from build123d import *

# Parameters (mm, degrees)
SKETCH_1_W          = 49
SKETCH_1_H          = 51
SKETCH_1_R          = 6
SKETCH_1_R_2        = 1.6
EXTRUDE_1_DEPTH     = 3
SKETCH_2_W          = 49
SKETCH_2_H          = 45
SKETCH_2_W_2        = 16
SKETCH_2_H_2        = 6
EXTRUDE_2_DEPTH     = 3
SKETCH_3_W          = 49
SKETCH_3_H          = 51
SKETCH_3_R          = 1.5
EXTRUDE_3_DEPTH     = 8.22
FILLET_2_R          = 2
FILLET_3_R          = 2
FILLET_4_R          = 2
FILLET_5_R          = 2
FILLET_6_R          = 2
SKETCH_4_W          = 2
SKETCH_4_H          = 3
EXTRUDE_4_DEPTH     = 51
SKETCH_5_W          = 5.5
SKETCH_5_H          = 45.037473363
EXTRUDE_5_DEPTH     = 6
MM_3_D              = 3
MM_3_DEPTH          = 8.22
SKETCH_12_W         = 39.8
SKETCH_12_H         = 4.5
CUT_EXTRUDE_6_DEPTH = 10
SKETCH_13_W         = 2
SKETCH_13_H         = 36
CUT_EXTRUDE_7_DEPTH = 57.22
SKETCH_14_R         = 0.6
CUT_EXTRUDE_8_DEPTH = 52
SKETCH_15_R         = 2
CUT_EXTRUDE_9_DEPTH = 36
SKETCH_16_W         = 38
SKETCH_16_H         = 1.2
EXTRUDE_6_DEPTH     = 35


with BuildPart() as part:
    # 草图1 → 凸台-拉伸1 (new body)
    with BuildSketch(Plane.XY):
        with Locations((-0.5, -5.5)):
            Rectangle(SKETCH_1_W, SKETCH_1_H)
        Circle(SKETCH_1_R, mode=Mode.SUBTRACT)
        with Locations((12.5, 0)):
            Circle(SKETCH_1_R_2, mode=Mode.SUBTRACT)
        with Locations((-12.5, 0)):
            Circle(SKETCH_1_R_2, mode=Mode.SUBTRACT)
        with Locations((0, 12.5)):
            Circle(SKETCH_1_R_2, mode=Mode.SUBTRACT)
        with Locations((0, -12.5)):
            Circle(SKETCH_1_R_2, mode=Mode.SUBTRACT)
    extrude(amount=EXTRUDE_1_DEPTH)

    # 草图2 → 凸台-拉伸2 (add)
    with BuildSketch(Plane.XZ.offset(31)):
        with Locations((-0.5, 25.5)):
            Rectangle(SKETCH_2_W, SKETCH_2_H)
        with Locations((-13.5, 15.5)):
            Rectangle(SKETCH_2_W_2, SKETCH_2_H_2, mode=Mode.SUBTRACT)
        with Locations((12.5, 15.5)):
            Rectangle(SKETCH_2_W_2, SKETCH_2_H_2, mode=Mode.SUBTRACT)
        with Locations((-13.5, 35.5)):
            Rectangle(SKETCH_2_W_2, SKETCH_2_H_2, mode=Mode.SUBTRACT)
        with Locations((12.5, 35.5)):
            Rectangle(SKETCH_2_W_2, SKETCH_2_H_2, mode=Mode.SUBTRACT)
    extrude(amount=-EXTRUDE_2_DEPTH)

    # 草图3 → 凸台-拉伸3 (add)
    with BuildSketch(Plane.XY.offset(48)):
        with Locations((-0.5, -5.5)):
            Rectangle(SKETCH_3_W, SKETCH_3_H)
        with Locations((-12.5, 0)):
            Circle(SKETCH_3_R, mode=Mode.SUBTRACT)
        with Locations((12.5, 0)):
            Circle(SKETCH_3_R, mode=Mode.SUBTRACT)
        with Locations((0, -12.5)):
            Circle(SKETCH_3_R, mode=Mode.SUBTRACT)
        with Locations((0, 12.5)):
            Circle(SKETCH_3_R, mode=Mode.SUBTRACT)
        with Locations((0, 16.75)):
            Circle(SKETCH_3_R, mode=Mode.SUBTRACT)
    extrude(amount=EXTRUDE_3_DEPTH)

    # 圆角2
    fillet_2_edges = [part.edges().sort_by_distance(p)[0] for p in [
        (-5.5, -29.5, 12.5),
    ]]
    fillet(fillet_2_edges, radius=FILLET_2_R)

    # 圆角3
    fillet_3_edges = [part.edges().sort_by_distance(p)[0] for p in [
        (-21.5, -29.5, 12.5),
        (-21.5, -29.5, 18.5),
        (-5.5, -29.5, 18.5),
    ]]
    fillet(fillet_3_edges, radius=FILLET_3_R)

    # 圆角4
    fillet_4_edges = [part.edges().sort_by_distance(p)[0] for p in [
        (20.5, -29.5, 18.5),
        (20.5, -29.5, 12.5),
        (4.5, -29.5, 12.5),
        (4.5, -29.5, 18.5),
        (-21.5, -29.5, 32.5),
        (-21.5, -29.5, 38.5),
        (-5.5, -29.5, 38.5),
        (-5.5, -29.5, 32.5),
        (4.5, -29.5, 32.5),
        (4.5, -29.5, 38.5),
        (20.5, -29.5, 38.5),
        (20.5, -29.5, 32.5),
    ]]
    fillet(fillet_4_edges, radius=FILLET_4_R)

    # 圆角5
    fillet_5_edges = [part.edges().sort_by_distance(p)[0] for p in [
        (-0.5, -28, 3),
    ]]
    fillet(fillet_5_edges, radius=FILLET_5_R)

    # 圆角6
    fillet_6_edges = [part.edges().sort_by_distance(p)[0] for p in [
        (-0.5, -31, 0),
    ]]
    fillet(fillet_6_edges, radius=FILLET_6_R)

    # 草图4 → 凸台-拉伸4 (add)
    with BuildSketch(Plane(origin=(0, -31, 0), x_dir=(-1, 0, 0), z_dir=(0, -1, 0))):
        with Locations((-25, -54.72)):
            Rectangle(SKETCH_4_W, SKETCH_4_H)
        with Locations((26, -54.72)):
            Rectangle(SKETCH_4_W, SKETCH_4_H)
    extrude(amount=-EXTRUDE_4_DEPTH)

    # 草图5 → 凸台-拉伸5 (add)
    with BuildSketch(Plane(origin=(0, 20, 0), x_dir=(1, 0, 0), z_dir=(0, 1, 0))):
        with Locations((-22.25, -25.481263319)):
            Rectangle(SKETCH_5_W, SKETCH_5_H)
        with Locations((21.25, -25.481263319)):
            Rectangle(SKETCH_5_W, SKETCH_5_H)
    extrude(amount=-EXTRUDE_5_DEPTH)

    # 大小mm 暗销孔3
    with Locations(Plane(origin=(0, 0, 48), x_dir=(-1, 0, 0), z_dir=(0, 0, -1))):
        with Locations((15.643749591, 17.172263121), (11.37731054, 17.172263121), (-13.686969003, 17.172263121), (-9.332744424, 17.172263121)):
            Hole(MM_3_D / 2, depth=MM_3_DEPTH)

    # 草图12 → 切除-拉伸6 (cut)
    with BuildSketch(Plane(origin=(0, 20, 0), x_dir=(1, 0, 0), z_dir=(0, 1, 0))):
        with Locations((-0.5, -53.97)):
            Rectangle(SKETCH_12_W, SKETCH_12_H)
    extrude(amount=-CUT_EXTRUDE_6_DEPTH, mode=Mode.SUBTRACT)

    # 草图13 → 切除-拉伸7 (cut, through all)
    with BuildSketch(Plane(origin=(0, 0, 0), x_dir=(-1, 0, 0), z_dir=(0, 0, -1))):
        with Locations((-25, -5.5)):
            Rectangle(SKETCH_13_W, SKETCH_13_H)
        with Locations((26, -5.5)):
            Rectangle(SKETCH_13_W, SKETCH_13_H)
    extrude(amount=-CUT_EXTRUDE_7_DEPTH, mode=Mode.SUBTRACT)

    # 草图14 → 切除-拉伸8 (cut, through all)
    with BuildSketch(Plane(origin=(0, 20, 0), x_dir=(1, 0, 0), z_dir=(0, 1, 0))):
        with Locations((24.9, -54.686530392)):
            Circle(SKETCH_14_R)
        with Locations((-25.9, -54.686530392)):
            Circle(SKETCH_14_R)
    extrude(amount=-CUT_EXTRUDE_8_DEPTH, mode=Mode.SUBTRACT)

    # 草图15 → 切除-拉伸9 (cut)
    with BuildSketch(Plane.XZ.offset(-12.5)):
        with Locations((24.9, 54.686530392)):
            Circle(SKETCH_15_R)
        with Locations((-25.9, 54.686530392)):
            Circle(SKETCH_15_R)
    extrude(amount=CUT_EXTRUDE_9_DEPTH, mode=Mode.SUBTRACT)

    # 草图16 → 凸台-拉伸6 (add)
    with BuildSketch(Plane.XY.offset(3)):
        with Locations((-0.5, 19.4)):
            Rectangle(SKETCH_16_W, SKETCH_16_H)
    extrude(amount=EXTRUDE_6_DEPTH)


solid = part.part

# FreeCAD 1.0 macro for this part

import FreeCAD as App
import Part
import Sketcher

V = App.Vector


def edges_at(feature, points):
    """Names of the edges that pass closest to the given points."""
    edges = feature.Shape.Edges
    near = lambda p: min(range(len(edges)), key=lambda i: edges[i].distToShape(Part.Vertex(*p))[0])
    return sorted({f"Edge{near(p) + 1}" for p in points})

doc = App.newDocument("Part")
params = doc.addObject("Spreadsheet::Sheet", "Params")
for row, (alias, value) in enumerate([
    ("sketch1_diameter", "12 mm"),
    ("sketch1_diameter2", "3.2 mm"),
    ("sketch1_width", "49 mm"),
    ("sketch1_height", "51 mm"),
    ("pad1_length", "3 mm"),
    ("sketch2_width", "49 mm"),
    ("sketch2_width2", "16 mm"),
    ("sketch2_height", "45 mm"),
    ("sketch2_height2", "6 mm"),
    ("pad2_length", "3 mm"),
    ("sketch3_diameter", "3 mm"),
    ("sketch3_width", "49 mm"),
    ("sketch3_height", "51 mm"),
    ("pad3_length", "8.22 mm"),
    ("fillet_radius", "2 mm"),
    ("fillet2_radius", "2 mm"),
    ("fillet3_radius", "2 mm"),
    ("fillet4_radius", "2 mm"),
    ("fillet5_radius", "2 mm"),
    ("sketch4_width", "2 mm"),
    ("sketch4_height", "3 mm"),
    ("pad4_length", "51 mm"),
    ("sketch5_width", "5.5 mm"),
    ("pad5_length", "6 mm"),
    ("sketch6_diameter", "3 mm"),
    ("hole_diameter", "3 mm"),
    ("hole_depth", "8.22 mm"),
    ("sketch7_width", "39.8 mm"),
    ("sketch7_height", "4.5 mm"),
    ("pocket1_length", "10 mm"),
    ("sketch8_width", "2 mm"),
    ("sketch8_height", "36 mm"),
    ("sketch9_diameter", "1.2 mm"),
    ("sketch10_diameter", "4 mm"),
    ("pocket4_length", "36 mm"),
    ("sketch11_width", "38 mm"),
    ("sketch11_height", "1.2 mm"),
    ("pad6_length", "35 mm"),
], start=1):
    params.set(f"A{row}", alias)
    params.set(f"B{row}", "=" + value)
    params.setAlias(f"B{row}", alias)

body = doc.addObject("PartDesign::Body", "Body")

sketch1 = body.newObject("Sketcher::SketchObject", "Sketch")
sketch1.AttachmentSupport = (doc.getObject("XY_Plane"), [""])
sketch1.MapMode = "FlatFace"
sketch1.addGeometry([
    Part.LineSegment(V(-25, 20, 0), V(-25, -31, 0)),
    Part.LineSegment(V(-25, -31, 0), V(24, -31, 0)),
    Part.LineSegment(V(24, -31, 0), V(24, 20, 0)),
    Part.LineSegment(V(24, 20, 0), V(-25, 20, 0)),
    Part.Circle(V(-12.5, 0, 0), V(0, 0, 1), 1.6),
    Part.Circle(V(0, -12.5, 0), V(0, 0, 1), 1.6),
    Part.Circle(V(0, 0, 0), V(0, 0, 1), 6),
    Part.Circle(V(12.5, 0, 0), V(0, 0, 1), 1.6),
    Part.Circle(V(0, 12.5, 0), V(0, 0, 1), 1.6),
], False)
sketch1.addConstraint([
    Sketcher.Constraint("Coincident", 0, 2, 1, 1),
    Sketcher.Constraint("Coincident", 1, 2, 2, 1),
    Sketcher.Constraint("Coincident", 2, 2, 3, 1),
    Sketcher.Constraint("Coincident", 3, 2, 0, 1),
    Sketcher.Constraint("Vertical", 0),
    Sketcher.Constraint("Horizontal", 1),
    Sketcher.Constraint("Vertical", 2),
    Sketcher.Constraint("Horizontal", 3),
    Sketcher.Constraint("Coincident", 6, 3, -1, 1),
    Sketcher.Constraint("Equal", 4, 5),
    Sketcher.Constraint("Equal", 5, 7),
    Sketcher.Constraint("Equal", 7, 8),
    Sketcher.Constraint("Symmetric", 4, 3, 7, 3, -1, 1),
    Sketcher.Constraint("Symmetric", 5, 3, 8, 3, -1, 1),
    Sketcher.Constraint("PointOnObject", 4, 3, -1),
    Sketcher.Constraint("PointOnObject", 5, 3, -2),
    Sketcher.Constraint("Diameter", 6, 12.0),
    Sketcher.Constraint("Diameter", 4, 3.2),
    Sketcher.Constraint("DistanceX", 1, 1, 1, 2, 49.0),
    Sketcher.Constraint("DistanceY", 0, 2, 0, 1, 51.0),
    Sketcher.Constraint("DistanceX", 0, 2, -1, 1, 25.0),
    Sketcher.Constraint("DistanceY", 0, 2, -1, 1, 31.0),
    Sketcher.Constraint("DistanceX", 4, 3, 7, 3, 25.0),
    Sketcher.Constraint("DistanceY", 5, 3, 8, 3, 25.0),
])
sketch1.setExpression("Constraints[16]", "Params.sketch1_diameter")
sketch1.setExpression("Constraints[17]", "Params.sketch1_diameter2")
sketch1.setExpression("Constraints[18]", "Params.sketch1_width")
sketch1.setExpression("Constraints[19]", "Params.sketch1_height")
pad1 = body.newObject("PartDesign::Pad", "Pad")
pad1.Profile = sketch1
pad1.setExpression("Length", "Params.pad1_length")

sketch2 = body.newObject("Sketcher::SketchObject", "Sketch001")
sketch2.AttachmentSupport = (doc.getObject("XZ_Plane"), [""])
sketch2.MapMode = "FlatFace"
sketch2.AttachmentOffset = App.Placement(V(0, 0, 31), App.Rotation())
sketch2.addGeometry([
    Part.LineSegment(V(-25, 48, 0), V(-25, 3, 0)),
    Part.LineSegment(V(-25, 3, 0), V(24, 3, 0)),
    Part.LineSegment(V(24, 3, 0), V(24, 48, 0)),
    Part.LineSegment(V(24, 48, 0), V(-25, 48, 0)),
    Part.LineSegment(V(-6, 12, 0), V(-22, 12, 0)),
    Part.LineSegment(V(-22, 12, 0), V(-22, 18, 0)),
    Part.LineSegment(V(-22, 18, 0), V(-6, 18, 0)),
    Part.LineSegment(V(-6, 18, 0), V(-6, 12, 0)),
    Part.LineSegment(V(20, 12, 0), V(4, 12, 0)),
    Part.LineSegment(V(4, 12, 0), V(4, 18, 0)),
    Part.LineSegment(V(4, 18, 0), V(20, 18, 0)),
    Part.LineSegment(V(20, 18, 0), V(20, 12, 0)),
    Part.LineSegment(V(-6, 32, 0), V(-22, 32, 0)),
    Part.LineSegment(V(-22, 32, 0), V(-22, 38, 0)),
    Part.LineSegment(V(-22, 38, 0), V(-6, 38, 0)),
    Part.LineSegment(V(-6, 38, 0), V(-6, 32, 0)),
    Part.LineSegment(V(20, 32, 0), V(4, 32, 0)),
    Part.LineSegment(V(4, 32, 0), V(4, 38, 0)),
    Part.LineSegment(V(4, 38, 0), V(20, 38, 0)),
    Part.LineSegment(V(20, 38, 0), V(20, 32, 0)),
], False)
sketch2.addConstraint([
    Sketcher.Constraint("Coincident", 0, 2, 1, 1),
    Sketcher.Constraint("Coincident", 1, 2, 2, 1),
    Sketcher.Constraint("Coincident", 2, 2, 3, 1),
    Sketcher.Constraint("Coincident", 3, 2, 0, 1),
    Sketcher.Constraint("Coincident", 4, 2, 5, 1),
    Sketcher.Constraint("Coincident", 5, 2, 6, 1),
    Sketcher.Constraint("Coincident", 6, 2, 7, 1),
    Sketcher.Constraint("Coincident", 7, 2, 4, 1),
    Sketcher.Constraint("Coincident", 8, 2, 9, 1),
    Sketcher.Constraint("Coincident", 9, 2, 10, 1),
    Sketcher.Constraint("Coincident", 10, 2, 11, 1),
    Sketcher.Constraint("Coincident", 11, 2, 8, 1),
    Sketcher.Constraint("Coincident", 12, 2, 13, 1),
    Sketcher.Constraint("Coincident", 13, 2, 14, 1),
    Sketcher.Constraint("Coincident", 14, 2, 15, 1),
    Sketcher.Constraint("Coincident", 15, 2, 12, 1),
    Sketcher.Constraint("Coincident", 16, 2, 17, 1),
    Sketcher.Constraint("Coincident", 17, 2, 18, 1),
    Sketcher.Constraint("Coincident", 18, 2, 19, 1),
    Sketcher.Constraint("Coincident", 19, 2, 16, 1),
    Sketcher.Constraint("Vertical", 0),
    Sketcher.Constraint("Horizontal", 1),
    Sketcher.Constraint("Vertical", 2),
    Sketcher.Constraint("Horizontal", 3),
    Sketcher.Constraint("Horizontal", 4),
    Sketcher.Constraint("Vertical", 5),
    Sketcher.Constraint("Horizontal", 6),
    Sketcher.Constraint("Vertical", 7),
    Sketcher.Constraint("Horizontal", 8),
    Sketcher.Constraint("Vertical", 9),
    Sketcher.Constraint("Horizontal", 10),
    Sketcher.Constraint("Vertical", 11),
    Sketcher.Constraint("Horizontal", 12),
    Sketcher.Constraint("Vertical", 13),
    Sketcher.Constraint("Horizontal", 14),
    Sketcher.Constraint("Vertical", 15),
    Sketcher.Constraint("Horizontal", 16),
    Sketcher.Constraint("Vertical", 17),
    Sketcher.Constraint("Horizontal", 18),
    Sketcher.Constraint("Vertical", 19),
    Sketcher.Constraint("Horizontal", 7, 2, 8, 2),
    Sketcher.Constraint("Horizontal", 6, 2, 9, 2),
    Sketcher.Constraint("Horizontal", 15, 2, 16, 2),
    Sketcher.Constraint("Horizontal", 14, 2, 17, 2),
    Sketcher.Constraint("Vertical", 5, 2, 12, 2),
    Sketcher.Constraint("Vertical", 7, 2, 14, 2),
    Sketcher.Constraint("Vertical", 9, 2, 16, 2),
    Sketcher.Constraint("Vertical", 11, 2, 18, 2),
    Sketcher.Constraint("Equal", 6, 8),
    Sketcher.Constraint("Equal", 11, 13),
    Sketcher.Constraint("DistanceX", 1, 1, 1, 2, 49.0),
    Sketcher.Constraint("DistanceX", 4, 2, 4, 1, 16.0),
    Sketcher.Constraint("DistanceY", 0, 2, 0, 1, 45.0),
    Sketcher.Constraint("DistanceY", 5, 1, 5, 2, 6.0),
    Sketcher.Constraint("DistanceX", 0, 2, -1, 1, 25.0),
    Sketcher.Constraint("DistanceY", -1, 1, 0, 2, 3.0),
    Sketcher.Constraint("DistanceX", 7, 2, 8, 2, 10.0),
    Sketcher.Constraint("DistanceY", 5, 2, 12, 2, 14.0),
    Sketcher.Constraint("DistanceX", 4, 2, -1, 1, 21.5),
    Sketcher.Constraint("DistanceY", -1, 1, 4, 2, 12.5),
])
sketch2.setExpression("Constraints[50]", "Params.sketch2_width")
sketch2.setExpression("Constraints[51]", "Params.sketch2_width2")
sketch2.setExpression("Constraints[52]", "Params.sketch2_height")
sketch2.setExpression("Constraints[53]", "Params.sketch2_height2")
pad2 = body.newObject("PartDesign::Pad", "Pad001")
pad2.Profile = sketch2
pad2.setExpression("Length", "Params.pad2_length")
pad2.Reversed = True

sketch3 = body.newObject("Sketcher::SketchObject", "Sketch002")
sketch3.AttachmentSupport = (doc.getObject("XY_Plane"), [""])
sketch3.MapMode = "FlatFace"
sketch3.AttachmentOffset = App.Placement(V(0, 0, 48), App.Rotation())
sketch3.addGeometry([
    Part.LineSegment(V(-25, 20, 0), V(-25, -31, 0)),
    Part.LineSegment(V(-25, -31, 0), V(24, -31, 0)),
    Part.LineSegment(V(24, -31, 0), V(24, 20, 0)),
    Part.LineSegment(V(24, 20, 0), V(-25, 20, 0)),
    Part.Circle(V(-12.5, 0, 0), V(0, 0, 1), 1.5),
    Part.Circle(V(0, -12.5, 0), V(0, 0, 1), 1.5),
    Part.Circle(V(12.5, 0, 0), V(0, 0, 1), 1.5),
    Part.Circle(V(0, 12.5, 0), V(0, 0, 1), 1.5),
    Part.Circle(V(0, 16.8, 0), V(0, 0, 1), 1.5),
], False)
sketch3.addConstraint([
    Sketcher.Constraint("Coincident", 0, 2, 1, 1),
    Sketcher.Constraint("Coincident", 1, 2, 2, 1),
    Sketcher.Constraint("Coincident", 2, 2, 3, 1),
    Sketcher.Constraint("Coincident", 3, 2, 0, 1),
    Sketcher.Constraint("Vertical", 0),
    Sketcher.Constraint("Horizontal", 1),
    Sketcher.Constraint("Vertical", 2),
    Sketcher.Constraint("Horizontal", 3),
    Sketcher.Constraint("Equal", 4, 5),
    Sketcher.Constraint("Equal", 5, 6),
    Sketcher.Constraint("Equal", 6, 7),
    Sketcher.Constraint("Equal", 7, 8),
    Sketcher.Constraint("Symmetric", 4, 3, 6, 3, -1, 1),
    Sketcher.Constraint("Symmetric", 5, 3, 7, 3, -1, 1),
    Sketcher.Constraint("PointOnObject", 4, 3, -1),
    Sketcher.Constraint("PointOnObject", 5, 3, -2),
    Sketcher.Constraint("PointOnObject", 8, 3, -2),
    Sketcher.Constraint("Diameter", 4, 3.0),
    Sketcher.Constraint("DistanceX", 1, 1, 1, 2, 49.0),
    Sketcher.Constraint("DistanceY", 0, 2, 0, 1, 51.0),
    Sketcher.Constraint("DistanceX", 0, 2, -1, 1, 25.0),
    Sketcher.Constraint("DistanceY", 0, 2, -1, 1, 31.0),
    Sketcher.Constraint("DistanceX", 4, 3, 6, 3, 25.0),
    Sketcher.Constraint("DistanceY", 5, 3, 7, 3, 25.0),
    Sketcher.Constraint("DistanceY", -1, 1, 8, 3, 16.75),
])
sketch3.setExpression("Constraints[17]", "Params.sketch3_diameter")
sketch3.setExpression("Constraints[18]", "Params.sketch3_width")
sketch3.setExpression("Constraints[19]", "Params.sketch3_height")
pad3 = body.newObject("PartDesign::Pad", "Pad002")
pad3.Profile = sketch3
pad3.setExpression("Length", "Params.pad3_length")
doc.recompute()

fillet = body.newObject("PartDesign::Fillet", "Fillet")
fillet.Base = (pad3, edges_at(pad3, [(-5.5, -29.5, 12.5)]))
fillet.setExpression("Radius", "Params.fillet_radius")
doc.recompute()

fillet2 = body.newObject("PartDesign::Fillet", "Fillet001")
fillet2.Base = (fillet, edges_at(fillet, [(-21.5, -29.5, 12.5), (-21.5, -29.5, 18.5), (-5.5, -29.5, 18.5)]))
fillet2.setExpression("Radius", "Params.fillet2_radius")
doc.recompute()

fillet3 = body.newObject("PartDesign::Fillet", "Fillet002")
fillet3.Base = (fillet2, edges_at(fillet2, [
    (20.5, -29.5, 18.5),
    (20.5, -29.5, 12.5),
    (4.5, -29.5, 12.5),
    (4.5, -29.5, 18.5),
    (-21.5, -29.5, 32.5),
    (-21.5, -29.5, 38.5),
    (-5.5, -29.5, 38.5),
    (-5.5, -29.5, 32.5),
    (4.5, -29.5, 32.5),
    (4.5, -29.5, 38.5),
    (20.5, -29.5, 38.5),
    (20.5, -29.5, 32.5),
]))
fillet3.setExpression("Radius", "Params.fillet3_radius")
doc.recompute()

fillet4 = body.newObject("PartDesign::Fillet", "Fillet003")
fillet4.Base = (fillet3, edges_at(fillet3, [(-0.5, -28, 3)]))
fillet4.setExpression("Radius", "Params.fillet4_radius")
doc.recompute()

fillet5 = body.newObject("PartDesign::Fillet", "Fillet004")
fillet5.Base = (fillet4, edges_at(fillet4, [(-0.5, -31, 0)]))
fillet5.setExpression("Radius", "Params.fillet5_radius")

sketch4 = body.newObject("Sketcher::SketchObject", "Sketch003")
sketch4.AttachmentSupport = (doc.getObject("XZ_Plane"), [""])
sketch4.MapMode = "FlatFace"
sketch4.AttachmentOffset = App.Placement(V(0, 0, 31), App.Rotation())
sketch4.addGeometry([
    Part.LineSegment(V(26, 53.2, 0), V(26, 56.2, 0)),
    Part.LineSegment(V(26, 56.2, 0), V(24, 56.2, 0)),
    Part.LineSegment(V(24, 56.2, 0), V(24, 53.2, 0)),
    Part.LineSegment(V(24, 53.2, 0), V(26, 53.2, 0)),
    Part.LineSegment(V(-25, 53.2, 0), V(-25, 56.2, 0)),
    Part.LineSegment(V(-25, 56.2, 0), V(-27, 56.2, 0)),
    Part.LineSegment(V(-27, 56.2, 0), V(-27, 53.2, 0)),
    Part.LineSegment(V(-27, 53.2, 0), V(-25, 53.2, 0)),
], False)
sketch4.addConstraint([
    Sketcher.Constraint("Coincident", 0, 2, 1, 1),
    Sketcher.Constraint("Coincident", 1, 2, 2, 1),
    Sketcher.Constraint("Coincident", 2, 2, 3, 1),
    Sketcher.Constraint("Coincident", 3, 2, 0, 1),
    Sketcher.Constraint("Coincident", 4, 2, 5, 1),
    Sketcher.Constraint("Coincident", 5, 2, 6, 1),
    Sketcher.Constraint("Coincident", 6, 2, 7, 1),
    Sketcher.Constraint("Coincident", 7, 2, 4, 1),
    Sketcher.Constraint("Vertical", 0),
    Sketcher.Constraint("Horizontal", 1),
    Sketcher.Constraint("Vertical", 2),
    Sketcher.Constraint("Horizontal", 3),
    Sketcher.Constraint("Vertical", 4),
    Sketcher.Constraint("Horizontal", 5),
    Sketcher.Constraint("Vertical", 6),
    Sketcher.Constraint("Horizontal", 7),
    Sketcher.Constraint("Horizontal", 1, 2, 4, 2),
    Sketcher.Constraint("Horizontal", 3, 2, 6, 2),
    Sketcher.Constraint("Equal", 3, 5),
    Sketcher.Constraint("DistanceX", 1, 2, 1, 1, 2.0),
    Sketcher.Constraint("DistanceY", 0, 1, 0, 2, 3.0),
    Sketcher.Constraint("DistanceX", -1, 1, 0, 2, 26.0),
    Sketcher.Constraint("DistanceX", 4, 2, -1, 1, 25.0),
    Sketcher.Constraint("DistanceY", -1, 1, 0, 2, 56.22),
])
sketch4.setExpression("Constraints[19]", "Params.sketch4_width")
sketch4.setExpression("Constraints[20]", "Params.sketch4_height")
pad4 = body.newObject("PartDesign::Pad", "Pad003")
pad4.Profile = sketch4
pad4.setExpression("Length", "Params.pad4_length")
pad4.Reversed = True

sketch5 = body.newObject("Sketcher::SketchObject", "Sketch004")
sketch5.AttachmentSupport = (doc.getObject("XZ_Plane"), [""])
sketch5.MapMode = "FlatFace"
sketch5.AttachmentOffset = App.Placement(V(0, 0, -20), App.Rotation())
sketch5.addGeometry([
    Part.LineSegment(V(-25, 3, 0), V(-25, 48, 0)),
    Part.LineSegment(V(-25, 48, 0), V(-20, 48, 0)),
    Part.LineSegment(V(-20, 48, 0), V(-20, 3, 0)),
    Part.LineSegment(V(-20, 3, 0), V(-25, 3, 0)),
    Part.LineSegment(V(18, 3, 0), V(18, 48, 0)),
    Part.LineSegment(V(18, 48, 0), V(24, 48, 0)),
    Part.LineSegment(V(24, 48, 0), V(24, 3, 0)),
    Part.LineSegment(V(24, 3, 0), V(18, 3, 0)),
], False)
sketch5.addConstraint([
    Sketcher.Constraint("Coincident", 0, 2, 1, 1),
    Sketcher.Constraint("Coincident", 1, 2, 2, 1),
    Sketcher.Constraint("Coincident", 2, 2, 3, 1),
    Sketcher.Constraint("Coincident", 3, 2, 0, 1),
    Sketcher.Constraint("Coincident", 4, 2, 5, 1),
    Sketcher.Constraint("Coincident", 5, 2, 6, 1),
    Sketcher.Constraint("Coincident", 6, 2, 7, 1),
    Sketcher.Constraint("Coincident", 7, 2, 4, 1),
    Sketcher.Constraint("Vertical", 0),
    Sketcher.Constraint("Horizontal", 1),
    Sketcher.Constraint("Vertical", 2),
    Sketcher.Constraint("Horizontal", 3),
    Sketcher.Constraint("Vertical", 4),
    Sketcher.Constraint("Horizontal", 5),
    Sketcher.Constraint("Vertical", 6),
    Sketcher.Constraint("Horizontal", 7),
    Sketcher.Constraint("Horizontal", 1, 2, 4, 2),
    Sketcher.Constraint("Horizontal", 3, 2, 6, 2),
    Sketcher.Constraint("Equal", 3, 5),
    Sketcher.Constraint("DistanceX", 1, 1, 1, 2, 5.5),
    Sketcher.Constraint("DistanceX", 0, 2, -1, 1, 25.0),
    Sketcher.Constraint("DistanceY", -1, 1, 0, 2, 48.0),
    Sketcher.Constraint("DistanceX", -1, 1, 5, 2, 24.0),
    Sketcher.Constraint("DistanceY", 0, 1, 0, 2, 45.037473),
])
sketch5.setExpression("Constraints[19]", "Params.sketch5_width")
pad5 = body.newObject("PartDesign::Pad", "Pad004")
pad5.Profile = sketch5
pad5.setExpression("Length", "Params.pad5_length")

sketch6 = body.newObject("Sketcher::SketchObject", "Sketch005")
sketch6.AttachmentSupport = (doc.getObject("XY_Plane"), [""])
sketch6.MapMode = "FlatFace"
sketch6.AttachmentOffset = App.Placement(V(0, 0, 48), App.Rotation())
sketch6.addGeometry([
    Part.Circle(V(-15.6, 17.2, 0), V(0, 0, 1), 1.5),
    Part.Circle(V(-11.4, 17.2, 0), V(0, 0, 1), 1.5),
    Part.Circle(V(13.7, 17.2, 0), V(0, 0, 1), 1.5),
    Part.Circle(V(9.3, 17.2, 0), V(0, 0, 1), 1.5),
], False)
sketch6.addConstraint([
    Sketcher.Constraint("Equal", 0, 1),
    Sketcher.Constraint("Equal", 1, 2),
    Sketcher.Constraint("Equal", 2, 3),
    Sketcher.Constraint("Horizontal", 0, 3, 1, 3),
    Sketcher.Constraint("Horizontal", 1, 3, 2, 3),
    Sketcher.Constraint("Horizontal", 2, 3, 3, 3),
    Sketcher.Constraint("Diameter", 0, 3.0),
    Sketcher.Constraint("DistanceX", 0, 3, -1, 1, 15.64375),
    Sketcher.Constraint("DistanceX", 1, 3, -1, 1, 11.377311),
    Sketcher.Constraint("DistanceX", -1, 1, 2, 3, 13.686969),
    Sketcher.Constraint("DistanceY", -1, 1, 0, 3, 17.172263),
    Sketcher.Constraint("DistanceX", -1, 1, 3, 3, 9.332744),
])
sketch6.setExpression("Constraints[6]", "Params.sketch6_diameter")
doc.recompute()
hole = body.newObject("PartDesign::Hole", "Hole")
hole.Profile = sketch6
hole.ThreadType = "None"
hole.setExpression("Diameter", "Params.hole_diameter")
hole.DepthType = "Dimension"
hole.setExpression("Depth", "Params.hole_depth")
hole.DrillPoint = "Flat"
hole.Reversed = True

sketch7 = body.newObject("Sketcher::SketchObject", "Sketch006")
sketch7.AttachmentSupport = (doc.getObject("XZ_Plane"), [""])
sketch7.MapMode = "FlatFace"
sketch7.AttachmentOffset = App.Placement(V(0, 0, -20), App.Rotation())
sketch7.addGeometry([
    Part.LineSegment(V(-20.4, 51.7, 0), V(-20.4, 56.2, 0)),
    Part.LineSegment(V(-20.4, 56.2, 0), V(19.4, 56.2, 0)),
    Part.LineSegment(V(19.4, 56.2, 0), V(19.4, 51.7, 0)),
    Part.LineSegment(V(19.4, 51.7, 0), V(-20.4, 51.7, 0)),
], False)
sketch7.addConstraint([
    Sketcher.Constraint("Coincident", 0, 2, 1, 1),
    Sketcher.Constraint("Coincident", 1, 2, 2, 1),
    Sketcher.Constraint("Coincident", 2, 2, 3, 1),
    Sketcher.Constraint("Coincident", 3, 2, 0, 1),
    Sketcher.Constraint("Vertical", 0),
    Sketcher.Constraint("Horizontal", 1),
    Sketcher.Constraint("Vertical", 2),
    Sketcher.Constraint("Horizontal", 3),
    Sketcher.Constraint("DistanceX", 1, 1, 1, 2, 39.8),
    Sketcher.Constraint("DistanceY", 0, 1, 0, 2, 4.5),
    Sketcher.Constraint("DistanceX", 0, 2, -1, 1, 20.4),
    Sketcher.Constraint("DistanceY", -1, 1, 0, 2, 56.22),
])
sketch7.setExpression("Constraints[8]", "Params.sketch7_width")
sketch7.setExpression("Constraints[9]", "Params.sketch7_height")
pocket1 = body.newObject("PartDesign::Pocket", "Pocket")
pocket1.Profile = sketch7
pocket1.setExpression("Length", "Params.pocket1_length")
pocket1.Reversed = True

sketch8 = body.newObject("Sketcher::SketchObject", "Sketch007")
sketch8.AttachmentSupport = (doc.getObject("XY_Plane"), [""])
sketch8.MapMode = "FlatFace"
sketch8.addGeometry([
    Part.LineSegment(V(26, 12.5, 0), V(26, -23.5, 0)),
    Part.LineSegment(V(26, -23.5, 0), V(24, -23.5, 0)),
    Part.LineSegment(V(24, -23.5, 0), V(24, 12.5, 0)),
    Part.LineSegment(V(24, 12.5, 0), V(26, 12.5, 0)),
    Part.LineSegment(V(-25, 12.5, 0), V(-25, -23.5, 0)),
    Part.LineSegment(V(-25, -23.5, 0), V(-27, -23.5, 0)),
    Part.LineSegment(V(-27, -23.5, 0), V(-27, 12.5, 0)),
    Part.LineSegment(V(-27, 12.5, 0), V(-25, 12.5, 0)),
], False)
sketch8.addConstraint([
    Sketcher.Constraint("Coincident", 0, 2, 1, 1),
    Sketcher.Constraint("Coincident", 1, 2, 2, 1),
    Sketcher.Constraint("Coincident", 2, 2, 3, 1),
    Sketcher.Constraint("Coincident", 3, 2, 0, 1),
    Sketcher.Constraint("Coincident", 4, 2, 5, 1),
    Sketcher.Constraint("Coincident", 5, 2, 6, 1),
    Sketcher.Constraint("Coincident", 6, 2, 7, 1),
    Sketcher.Constraint("Coincident", 7, 2, 4, 1),
    Sketcher.Constraint("Vertical", 0),
    Sketcher.Constraint("Horizontal", 1),
    Sketcher.Constraint("Vertical", 2),
    Sketcher.Constraint("Horizontal", 3),
    Sketcher.Constraint("Vertical", 4),
    Sketcher.Constraint("Horizontal", 5),
    Sketcher.Constraint("Vertical", 6),
    Sketcher.Constraint("Horizontal", 7),
    Sketcher.Constraint("Horizontal", 1, 2, 4, 2),
    Sketcher.Constraint("Horizontal", 3, 2, 6, 2),
    Sketcher.Constraint("Equal", 3, 5),
    Sketcher.Constraint("DistanceX", 1, 2, 1, 1, 2.0),
    Sketcher.Constraint("DistanceY", 0, 2, 0, 1, 36.0),
    Sketcher.Constraint("DistanceX", -1, 1, 0, 2, 26.0),
    Sketcher.Constraint("DistanceX", 4, 2, -1, 1, 25.0),
    Sketcher.Constraint("DistanceY", 0, 2, -1, 1, 23.5),
])
sketch8.setExpression("Constraints[19]", "Params.sketch8_width")
sketch8.setExpression("Constraints[20]", "Params.sketch8_height")
pocket2 = body.newObject("PartDesign::Pocket", "Pocket001")
pocket2.Profile = sketch8
pocket2.Type = "ThroughAll"
pocket2.Reversed = True

sketch9 = body.newObject("Sketcher::SketchObject", "Sketch008")
sketch9.AttachmentSupport = (doc.getObject("XZ_Plane"), [""])
sketch9.MapMode = "FlatFace"
sketch9.AttachmentOffset = App.Placement(V(0, 0, -20), App.Rotation())
sketch9.addGeometry([
    Part.Circle(V(24.9, 54.7, 0), V(0, 0, 1), 0.6),
    Part.Circle(V(-25.9, 54.7, 0), V(0, 0, 1), 0.6),
], False)
sketch9.addConstraint([
    Sketcher.Constraint("Equal", 0, 1),
    Sketcher.Constraint("Horizontal", 0, 3, 1, 3),
    Sketcher.Constraint("Diameter", 0, 1.2),
    Sketcher.Constraint("DistanceX", -1, 1, 0, 3, 24.9),
    Sketcher.Constraint("DistanceX", 1, 3, -1, 1, 25.9),
    Sketcher.Constraint("DistanceY", -1, 1, 0, 3, 54.68653),
])
sketch9.setExpression("Constraints[2]", "Params.sketch9_diameter")
pocket3 = body.newObject("PartDesign::Pocket", "Pocket002")
pocket3.Profile = sketch9
pocket3.Type = "ThroughAll"
pocket3.Reversed = True

sketch10 = body.newObject("Sketcher::SketchObject", "Sketch009")
sketch10.AttachmentSupport = (doc.getObject("XZ_Plane"), [""])
sketch10.MapMode = "FlatFace"
sketch10.AttachmentOffset = App.Placement(V(0, 0, -12.5), App.Rotation())
sketch10.addGeometry([
    Part.Circle(V(24.9, 54.7, 0), V(0, 0, 1), 2),
    Part.Circle(V(-25.9, 54.7, 0), V(0, 0, 1), 2),
], False)
sketch10.addConstraint([
    Sketcher.Constraint("Equal", 0, 1),
    Sketcher.Constraint("Horizontal", 0, 3, 1, 3),
    Sketcher.Constraint("Diameter", 0, 4.0),
    Sketcher.Constraint("DistanceX", -1, 1, 0, 3, 24.9),
    Sketcher.Constraint("DistanceX", 1, 3, -1, 1, 25.9),
    Sketcher.Constraint("DistanceY", -1, 1, 0, 3, 54.68653),
])
sketch10.setExpression("Constraints[2]", "Params.sketch10_diameter")
pocket4 = body.newObject("PartDesign::Pocket", "Pocket003")
pocket4.Profile = sketch10
pocket4.setExpression("Length", "Params.pocket4_length")
pocket4.Reversed = True

sketch11 = body.newObject("Sketcher::SketchObject", "Sketch010")
sketch11.AttachmentSupport = (doc.getObject("XY_Plane"), [""])
sketch11.MapMode = "FlatFace"
sketch11.AttachmentOffset = App.Placement(V(0, 0, 3), App.Rotation())
sketch11.addGeometry([
    Part.LineSegment(V(-19.5, 20, 0), V(-19.5, 18.8, 0)),
    Part.LineSegment(V(-19.5, 18.8, 0), V(18.5, 18.8, 0)),
    Part.LineSegment(V(18.5, 18.8, 0), V(18.5, 20, 0)),
    Part.LineSegment(V(18.5, 20, 0), V(-19.5, 20, 0)),
], False)
sketch11.addConstraint([
    Sketcher.Constraint("Coincident", 0, 2, 1, 1),
    Sketcher.Constraint("Coincident", 1, 2, 2, 1),
    Sketcher.Constraint("Coincident", 2, 2, 3, 1),
    Sketcher.Constraint("Coincident", 3, 2, 0, 1),
    Sketcher.Constraint("Vertical", 0),
    Sketcher.Constraint("Horizontal", 1),
    Sketcher.Constraint("Vertical", 2),
    Sketcher.Constraint("Horizontal", 3),
    Sketcher.Constraint("DistanceX", 1, 1, 1, 2, 38.0),
    Sketcher.Constraint("DistanceY", 0, 2, 0, 1, 1.2),
    Sketcher.Constraint("DistanceY", -1, 1, 2, 2, 20.0),
    Sketcher.Constraint("DistanceX", 0, 2, -1, 1, 19.5),
])
sketch11.setExpression("Constraints[8]", "Params.sketch11_width")
sketch11.setExpression("Constraints[9]", "Params.sketch11_height")
pad6 = body.newObject("PartDesign::Pad", "Pad005")
pad6.Profile = sketch11
pad6.setExpression("Length", "Params.pad6_length")

doc.recompute()
